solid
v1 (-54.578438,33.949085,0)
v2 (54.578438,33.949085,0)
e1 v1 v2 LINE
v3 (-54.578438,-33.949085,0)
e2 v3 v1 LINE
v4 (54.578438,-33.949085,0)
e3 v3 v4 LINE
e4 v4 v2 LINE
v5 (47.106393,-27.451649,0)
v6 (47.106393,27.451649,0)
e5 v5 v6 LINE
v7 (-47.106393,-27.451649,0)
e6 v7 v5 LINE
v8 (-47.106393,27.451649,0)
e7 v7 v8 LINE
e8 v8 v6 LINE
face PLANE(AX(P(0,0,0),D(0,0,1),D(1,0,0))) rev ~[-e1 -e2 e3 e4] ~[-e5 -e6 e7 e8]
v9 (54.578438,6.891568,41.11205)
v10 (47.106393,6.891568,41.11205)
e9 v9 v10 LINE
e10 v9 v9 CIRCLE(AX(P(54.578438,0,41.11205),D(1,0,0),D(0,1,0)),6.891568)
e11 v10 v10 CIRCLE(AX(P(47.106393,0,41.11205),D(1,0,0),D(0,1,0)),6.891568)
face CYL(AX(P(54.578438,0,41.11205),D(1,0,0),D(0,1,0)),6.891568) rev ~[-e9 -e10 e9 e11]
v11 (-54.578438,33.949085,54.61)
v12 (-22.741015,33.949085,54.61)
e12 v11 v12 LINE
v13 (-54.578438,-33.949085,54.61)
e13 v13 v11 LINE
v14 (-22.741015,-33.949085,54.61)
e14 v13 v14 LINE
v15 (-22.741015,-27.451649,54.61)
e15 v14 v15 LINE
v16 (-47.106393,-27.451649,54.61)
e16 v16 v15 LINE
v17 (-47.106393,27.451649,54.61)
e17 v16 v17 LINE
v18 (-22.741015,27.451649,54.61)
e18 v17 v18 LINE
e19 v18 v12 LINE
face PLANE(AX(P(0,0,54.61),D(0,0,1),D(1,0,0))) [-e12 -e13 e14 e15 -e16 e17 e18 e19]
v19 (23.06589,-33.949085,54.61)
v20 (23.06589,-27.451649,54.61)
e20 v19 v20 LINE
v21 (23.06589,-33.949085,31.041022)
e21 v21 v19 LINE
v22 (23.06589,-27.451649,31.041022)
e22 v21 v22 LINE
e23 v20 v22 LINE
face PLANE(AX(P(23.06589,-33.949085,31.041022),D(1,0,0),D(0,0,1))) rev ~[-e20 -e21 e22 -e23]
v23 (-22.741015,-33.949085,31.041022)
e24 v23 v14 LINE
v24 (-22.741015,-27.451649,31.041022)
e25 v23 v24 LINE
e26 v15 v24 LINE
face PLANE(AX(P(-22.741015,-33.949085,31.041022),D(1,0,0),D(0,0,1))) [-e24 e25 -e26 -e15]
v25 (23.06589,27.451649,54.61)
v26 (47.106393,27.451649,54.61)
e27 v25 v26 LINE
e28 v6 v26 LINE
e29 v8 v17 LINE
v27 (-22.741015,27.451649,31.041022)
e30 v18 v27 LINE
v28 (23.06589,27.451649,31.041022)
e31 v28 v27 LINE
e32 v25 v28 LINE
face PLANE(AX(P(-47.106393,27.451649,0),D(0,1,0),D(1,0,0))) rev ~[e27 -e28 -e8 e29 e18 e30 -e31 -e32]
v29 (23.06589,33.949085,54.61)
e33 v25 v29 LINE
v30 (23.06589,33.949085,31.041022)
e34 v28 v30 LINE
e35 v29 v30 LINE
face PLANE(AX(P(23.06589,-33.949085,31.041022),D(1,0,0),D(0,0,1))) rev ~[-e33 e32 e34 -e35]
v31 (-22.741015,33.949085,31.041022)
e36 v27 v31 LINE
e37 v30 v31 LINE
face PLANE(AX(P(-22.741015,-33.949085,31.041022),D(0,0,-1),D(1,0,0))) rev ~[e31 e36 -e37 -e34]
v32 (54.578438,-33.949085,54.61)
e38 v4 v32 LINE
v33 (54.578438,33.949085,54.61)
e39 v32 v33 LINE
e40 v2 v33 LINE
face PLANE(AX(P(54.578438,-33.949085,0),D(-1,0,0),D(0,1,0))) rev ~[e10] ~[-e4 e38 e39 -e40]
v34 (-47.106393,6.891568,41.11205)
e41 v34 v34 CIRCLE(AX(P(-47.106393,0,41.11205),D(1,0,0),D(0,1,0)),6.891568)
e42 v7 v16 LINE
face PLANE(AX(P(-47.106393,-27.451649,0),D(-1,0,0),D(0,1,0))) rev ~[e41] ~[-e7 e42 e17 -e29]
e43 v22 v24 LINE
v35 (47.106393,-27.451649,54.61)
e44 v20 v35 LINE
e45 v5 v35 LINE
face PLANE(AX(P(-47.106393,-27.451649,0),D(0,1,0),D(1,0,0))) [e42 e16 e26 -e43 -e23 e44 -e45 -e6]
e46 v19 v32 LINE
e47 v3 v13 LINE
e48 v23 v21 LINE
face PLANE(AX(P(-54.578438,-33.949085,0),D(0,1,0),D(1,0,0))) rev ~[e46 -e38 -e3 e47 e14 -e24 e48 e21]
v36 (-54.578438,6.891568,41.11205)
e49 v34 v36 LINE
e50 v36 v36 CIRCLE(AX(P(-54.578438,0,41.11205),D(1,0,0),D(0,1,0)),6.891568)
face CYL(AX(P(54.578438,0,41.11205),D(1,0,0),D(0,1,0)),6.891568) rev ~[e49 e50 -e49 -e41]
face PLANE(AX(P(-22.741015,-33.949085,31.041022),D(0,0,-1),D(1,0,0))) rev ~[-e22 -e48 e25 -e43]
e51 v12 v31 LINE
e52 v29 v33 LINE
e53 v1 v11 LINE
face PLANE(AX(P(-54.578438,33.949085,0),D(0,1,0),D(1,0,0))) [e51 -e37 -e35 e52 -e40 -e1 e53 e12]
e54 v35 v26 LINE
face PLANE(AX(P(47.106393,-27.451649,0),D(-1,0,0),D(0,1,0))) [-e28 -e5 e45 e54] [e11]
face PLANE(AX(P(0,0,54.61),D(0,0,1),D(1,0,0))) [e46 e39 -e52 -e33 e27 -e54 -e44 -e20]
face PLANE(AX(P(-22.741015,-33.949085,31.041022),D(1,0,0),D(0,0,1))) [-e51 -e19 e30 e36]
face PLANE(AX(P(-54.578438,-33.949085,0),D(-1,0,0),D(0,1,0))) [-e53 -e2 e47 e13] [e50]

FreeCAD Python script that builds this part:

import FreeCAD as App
import Part
import Sketcher

V = App.Vector
Q = App.Units.Quantity


def add_polygon(sketch, points):
    """Adds a closed chain of lines whose ends are joined by coincident constraints."""
    first, n = sketch.GeometryCount, len(points)
    for a, b in zip(points, points[1:] + points[:1]):
        sketch.addGeometry(Part.LineSegment(App.Vector(*a, 0), App.Vector(*b, 0)), False)
    for i in range(n):
        sketch.addConstraint(Sketcher.Constraint("Coincident", first + i, 2, first + (i + 1) % n, 1))

doc = App.newDocument("Part")
params = doc.addObject("Spreadsheet::Sheet", "Params")
for row, (alias, value) in enumerate([
    ("pad1_length", "2.15 in"),
], start=1):
    params.set(f"A{row}", alias)
    params.set(f"B{row}", "=" + value)
    params.setAlias(f"B{row}", alias)

body = doc.addObject("PartDesign::Body", "Body")

sketch1 = doc.addObject("Sketcher::SketchObject", "Sketch")
body.addObject(sketch1)
sketch1.AttachmentSupport = (doc.XY_Plane, [""])
sketch1.MapMode = "FlatFace"
add_polygon(sketch1, [(-54.578438, 33.949085), (-54.578438, -33.949085), (54.578438, -33.949085), (54.578438, 33.949085)])
add_polygon(sketch1, [(47.106393, -27.451649), (-47.106393, -27.451649), (-47.106393, 27.451649), (47.106393, 27.451649)])
sketch1.addConstraint(Sketcher.Constraint("Vertical", 0))
sketch1.addConstraint(Sketcher.Constraint("Horizontal", 1))
sketch1.addConstraint(Sketcher.Constraint("Vertical", 2))
sketch1.addConstraint(Sketcher.Constraint("Horizontal", 3))
sketch1.addConstraint(Sketcher.Constraint("Horizontal", 4))
sketch1.addConstraint(Sketcher.Constraint("Vertical", 5))
sketch1.addConstraint(Sketcher.Constraint("Horizontal", 6))
sketch1.addConstraint(Sketcher.Constraint("Vertical", 7))
sketch1.addConstraint(Sketcher.Constraint("Symmetric", 0, 2, 2, 2, -1, 1))
sketch1.addConstraint(Sketcher.Constraint("Symmetric", 4, 2, 6, 2, -1, 1))
sketch1.addConstraint(Sketcher.Constraint("DistanceY", 0, 2, 0, 1, Q("67.89817 mm")))
sketch1.addConstraint(Sketcher.Constraint("DistanceX", 1, 1, 1, 2, Q("109.156876 mm")))
sketch1.addConstraint(Sketcher.Constraint("DistanceX", 4, 2, 4, 1, Q("94.212786 mm")))
sketch1.addConstraint(Sketcher.Constraint("DistanceY", 5, 1, 5, 2, Q("54.903298 mm")))
pad1 = doc.addObject("PartDesign::Pad", "Pad")
body.addObject(pad1)
pad1.Profile = sketch1
pad1.setExpression("Length", "Params.pad1_length")

sketch2 = doc.addObject("Sketcher::SketchObject", "Sketch001")
body.addObject(sketch2)
sketch2.AttachmentSupport = (doc.XZ_Plane, [""])
sketch2.MapMode = "FlatFace"
sketch2.AttachmentOffset = App.Placement(V(0, 0, 33.949085), App.Rotation())
add_polygon(sketch2, [(-22.741015, 54.61), (-22.741015, 31.041022), (23.06589, 31.041022), (23.06589, 54.61)])
sketch2.addConstraint(Sketcher.Constraint("Vertical", 0))
sketch2.addConstraint(Sketcher.Constraint("Horizontal", 1))
sketch2.addConstraint(Sketcher.Constraint("Vertical", 2))
sketch2.addConstraint(Sketcher.Constraint("Horizontal", 3))
sketch2.addConstraint(Sketcher.Constraint("DistanceY", -1, 1, 2, 2, Q("2.15 in")))
sketch2.addConstraint(Sketcher.Constraint("DistanceX", 1, 1, 1, 2, Q("45.806905 mm")))
sketch2.addConstraint(Sketcher.Constraint("DistanceY", 0, 2, 0, 1, Q("23.568978 mm")))
sketch2.addConstraint(Sketcher.Constraint("DistanceX", -1, 1, 1, 2, Q("23.06589 mm")))
pocket1 = doc.addObject("PartDesign::Pocket", "Pocket")
body.addObject(pocket1)
pocket1.Profile = sketch2
pocket1.Type = "ThroughAll"

sketch3 = doc.addObject("Sketcher::SketchObject", "Sketch002")
body.addObject(sketch3)
sketch3.AttachmentSupport = (doc.YZ_Plane, [""])
sketch3.MapMode = "FlatFace"
sketch3.AttachmentOffset = App.Placement(V(0, 0, 54.578438), App.Rotation())
sketch3.addGeometry(Part.Circle(V(0, 41.11205, 0), V(0, 0, 1), 6.891568), False)
sketch3.addConstraint(Sketcher.Constraint("PointOnObject", 0, 3, -2))
sketch3.addConstraint(Sketcher.Constraint("Diameter", 0, Q("13.783136 mm")))
sketch3.addConstraint(Sketcher.Constraint("DistanceY", -1, 1, 0, 3, Q("41.11205 mm")))
pocket2 = doc.addObject("PartDesign::Pocket", "Pocket001")
body.addObject(pocket2)
pocket2.Profile = sketch3
pocket2.Type = "ThroughAll"

doc.recompute()
